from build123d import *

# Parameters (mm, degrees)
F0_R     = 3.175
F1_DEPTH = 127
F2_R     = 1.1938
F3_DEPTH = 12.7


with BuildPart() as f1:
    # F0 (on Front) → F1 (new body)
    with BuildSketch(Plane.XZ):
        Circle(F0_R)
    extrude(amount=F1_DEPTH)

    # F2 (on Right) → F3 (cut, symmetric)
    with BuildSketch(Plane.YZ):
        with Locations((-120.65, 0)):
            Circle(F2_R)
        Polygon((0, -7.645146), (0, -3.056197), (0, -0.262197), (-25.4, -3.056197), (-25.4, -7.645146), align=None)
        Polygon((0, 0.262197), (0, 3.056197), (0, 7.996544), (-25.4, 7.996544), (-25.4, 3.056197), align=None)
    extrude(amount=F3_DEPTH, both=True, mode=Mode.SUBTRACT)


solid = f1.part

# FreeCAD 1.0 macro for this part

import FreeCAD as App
import Part
import Sketcher

V = App.Vector
Q = App.Units.Quantity

doc = App.newDocument("Part")
body = doc.addObject("PartDesign::Body", "Body")

sketch1 = doc.addObject("Sketcher::SketchObject", "Sketch")
body.addObject(sketch1)
sketch1.AttachmentSupport = (doc.XZ_Plane, [""])
sketch1.MapMode = "FlatFace"
sketch1.addGeometry(Part.Circle(V(0, 0, 0), V(0, 0, 1), 3.2), False)
sketch1.addConstraint([
    Sketcher.Constraint("Coincident", 0, 3, -1, 1),
    Sketcher.Constraint("Diameter", 0, Q("0.25 in")),
])
pad1 = doc.addObject("PartDesign::Pad", "Pad")
body.addObject(pad1)
pad1.Profile = sketch1
pad1.Length = Q("5 in")

sketch2 = doc.addObject("Sketcher::SketchObject", "Sketch001")
body.addObject(sketch2)
sketch2.AttachmentSupport = (doc.YZ_Plane, [""])
sketch2.MapMode = "FlatFace"
sketch2.addGeometry([
    Part.Circle(V(-120.7, 0, 0), V(0, 0, 1), 1.2),
    Part.LineSegment(V(0, -7.6, 0), V(0, -0.3, 0)),
    Part.LineSegment(V(0, -0.3, 0), V(-25.4, -3.1, 0)),
    Part.LineSegment(V(-25.4, -3.1, 0), V(-25.4, -7.6, 0)),
    Part.LineSegment(V(-25.4, -7.6, 0), V(0, -7.6, 0)),
    Part.LineSegment(V(0, 0.3, 0), V(0, 8, 0)),
    Part.LineSegment(V(0, 8, 0), V(-25.4, 8, 0)),
    Part.LineSegment(V(-25.4, 8, 0), V(-25.4, 3.1, 0)),
    Part.LineSegment(V(-25.4, 3.1, 0), V(0, 0.3, 0)),
], False)
sketch2.addConstraint([
    Sketcher.Constraint("Coincident", 1, 2, 2, 1),
    Sketcher.Constraint("Coincident", 2, 2, 3, 1),
    Sketcher.Constraint("Coincident", 3, 2, 4, 1),
    Sketcher.Constraint("Coincident", 4, 2, 1, 1),
    Sketcher.Constraint("Coincident", 5, 2, 6, 1),
    Sketcher.Constraint("Coincident", 6, 2, 7, 1),
    Sketcher.Constraint("Coincident", 7, 2, 8, 1),
    Sketcher.Constraint("Coincident", 8, 2, 5, 1),
    Sketcher.Constraint("Vertical", 1),
    Sketcher.Constraint("Vertical", 3),
    Sketcher.Constraint("Horizontal", 4),
    Sketcher.Constraint("Vertical", 5),
    Sketcher.Constraint("Horizontal", 6),
    Sketcher.Constraint("Vertical", 7),
    Sketcher.Constraint("Symmetric", 1, 2, 8, 2, -1, 1),
    Sketcher.Constraint("Symmetric", 2, 2, 7, 2, -1),
    Sketcher.Constraint("PointOnObject", 0, 3, -1),
    Sketcher.Constraint("PointOnObject", 1, 2, -2),
    Sketcher.Constraint("DistanceX", 4, 1, 4, 2, Q("1 in")),
    Sketcher.Constraint("Diameter", 0, Q("0.094 in")),
    Sketcher.Constraint("DistanceX", 0, 3, -1, 1, Q("4.75 in")),
    Sketcher.Constraint("DistanceY", 2, 2, 1, 2, Q("0.11 in")),
    Sketcher.Constraint("DistanceY", 1, 1, 1, 2, 7.382949),
    Sketcher.Constraint("DistanceY", 5, 1, 5, 2, 7.734347),
    Sketcher.Constraint("DistanceY", 1, 2, 5, 2, 8.258741),
])
pocket1 = doc.addObject("PartDesign::Pocket", "Pocket")
body.addObject(pocket1)
pocket1.Profile = sketch2
pocket1.Length = Q("1 in")
pocket1.Midplane = True

doc.recompute()
